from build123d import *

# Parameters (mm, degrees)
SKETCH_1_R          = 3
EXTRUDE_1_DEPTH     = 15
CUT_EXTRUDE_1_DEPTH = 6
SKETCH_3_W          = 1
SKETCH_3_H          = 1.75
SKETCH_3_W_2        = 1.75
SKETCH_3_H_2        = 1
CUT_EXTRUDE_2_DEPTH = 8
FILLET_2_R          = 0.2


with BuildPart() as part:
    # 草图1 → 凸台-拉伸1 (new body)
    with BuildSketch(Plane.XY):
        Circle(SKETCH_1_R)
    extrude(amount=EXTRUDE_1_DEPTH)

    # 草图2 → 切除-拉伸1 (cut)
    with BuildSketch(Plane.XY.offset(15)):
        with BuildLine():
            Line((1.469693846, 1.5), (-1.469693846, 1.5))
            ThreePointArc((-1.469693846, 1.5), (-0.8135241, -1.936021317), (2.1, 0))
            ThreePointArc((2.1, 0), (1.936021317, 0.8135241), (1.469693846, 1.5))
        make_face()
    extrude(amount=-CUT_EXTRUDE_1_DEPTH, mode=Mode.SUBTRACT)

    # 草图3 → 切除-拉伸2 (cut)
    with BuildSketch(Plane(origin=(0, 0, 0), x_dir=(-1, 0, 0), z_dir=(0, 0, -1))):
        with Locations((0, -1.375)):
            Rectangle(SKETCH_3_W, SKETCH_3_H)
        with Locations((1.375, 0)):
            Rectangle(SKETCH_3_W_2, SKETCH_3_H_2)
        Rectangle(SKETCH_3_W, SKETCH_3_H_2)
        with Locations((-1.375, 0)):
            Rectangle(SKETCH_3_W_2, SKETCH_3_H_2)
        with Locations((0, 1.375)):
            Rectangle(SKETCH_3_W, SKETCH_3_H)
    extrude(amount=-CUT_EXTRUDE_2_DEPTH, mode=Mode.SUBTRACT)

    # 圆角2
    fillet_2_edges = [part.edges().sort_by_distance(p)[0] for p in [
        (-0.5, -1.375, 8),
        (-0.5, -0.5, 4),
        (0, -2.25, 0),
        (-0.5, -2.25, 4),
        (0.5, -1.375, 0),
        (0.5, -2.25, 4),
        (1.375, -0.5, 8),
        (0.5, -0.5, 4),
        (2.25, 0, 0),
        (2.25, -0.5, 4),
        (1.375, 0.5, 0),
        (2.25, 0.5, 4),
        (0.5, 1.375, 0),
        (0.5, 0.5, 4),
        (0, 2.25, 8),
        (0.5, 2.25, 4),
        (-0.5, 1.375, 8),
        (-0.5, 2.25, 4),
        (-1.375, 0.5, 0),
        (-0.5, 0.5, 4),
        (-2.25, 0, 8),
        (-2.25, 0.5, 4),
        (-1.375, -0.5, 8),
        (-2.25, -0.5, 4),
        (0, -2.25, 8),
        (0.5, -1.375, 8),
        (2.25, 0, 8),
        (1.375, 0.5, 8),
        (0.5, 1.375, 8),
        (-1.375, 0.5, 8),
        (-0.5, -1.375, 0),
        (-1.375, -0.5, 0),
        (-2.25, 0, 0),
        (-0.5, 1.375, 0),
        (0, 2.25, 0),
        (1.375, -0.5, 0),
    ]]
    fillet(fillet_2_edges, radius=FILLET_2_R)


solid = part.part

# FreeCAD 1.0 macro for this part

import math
import FreeCAD as App
import Part
import Sketcher
from FreeCAD import Vector
Q = App.Units.Quantity


def edges_at(feature, points):
    """Names of the edges that pass closest to the given points."""
    edges = feature.Shape.Edges
    near = lambda p: min(range(len(edges)), key=lambda i: edges[i].distToShape(Part.Vertex(*p))[0])
    return sorted({f"Edge{near(p) + 1}" for p in points})


def add_polygon(sketch, points):
    """Adds a closed chain of lines whose ends are joined by coincident constraints."""
    first, n = sketch.GeometryCount, len(points)
    for a, b in zip(points, points[1:] + points[:1]):
        sketch.addGeometry(Part.LineSegment(App.Vector(*a, 0), App.Vector(*b, 0)), False)
    for i in range(n):
        sketch.addConstraint(Sketcher.Constraint("Coincident", first + i, 2, first + (i + 1) % n, 1))

doc = App.newDocument("Part")
body = doc.addObject("PartDesign::Body", "Body")

sketch1 = body.newObject("Sketcher::SketchObject", "Sketch")
sketch1.AttachmentSupport = (doc.getObject("XY_Plane"), [""])
sketch1.MapMode = "FlatFace"
sketch1.addGeometry(Part.Circle(Vector(0, 0, 0), Vector(0, 0, 1), 3), False)
sketch1.addConstraint(Sketcher.Constraint("Coincident", 0, 3, -1, 1))
sketch1.addConstraint(Sketcher.Constraint("Diameter", 0, Q("6 mm")))
pad1 = body.newObject("PartDesign::Pad", "Pad")
pad1.Profile = sketch1
pad1.Length = 15

sketch2 = body.newObject("Sketcher::SketchObject", "Sketch001")
sketch2.AttachmentSupport = (doc.getObject("XY_Plane"), [""])
sketch2.MapMode = "FlatFace"
sketch2.AttachmentOffset = App.Placement(Vector(0, 0, 15), App.Rotation())
sketch2.addGeometry(Part.LineSegment(Vector(1.5, 1.5, 0), Vector(-1.5, 1.5, 0)), False)
sketch2.addGeometry(Part.ArcOfCircle(Part.Circle(Vector(0, 0, 0), Vector(0, 0, 1), 2.1), math.radians(134), math.radians(360)), False)
sketch2.addGeometry(Part.ArcOfCircle(Part.Circle(Vector(0, 0, 0), Vector(0, 0, 1), 2.1), math.radians(0), math.radians(46)), False)
sketch2.addConstraint(Sketcher.Constraint("Coincident", 0, 2, 1, 1))
sketch2.addConstraint(Sketcher.Constraint("Tangent", 1, 2, 2, 1))
sketch2.addConstraint(Sketcher.Constraint("Coincident", 2, 2, 0, 1))
sketch2.addConstraint(Sketcher.Constraint("Horizontal", 0))
sketch2.addConstraint(Sketcher.Constraint("Coincident", 1, 3, -1, 1))
sketch2.addConstraint(Sketcher.Constraint("Equal", 1, 2))
sketch2.addConstraint(Sketcher.Constraint("PointOnObject", 1, 2, -1))
sketch2.addConstraint(Sketcher.Constraint("Radius", 1, Q("2.1 mm")))
sketch2.addConstraint(Sketcher.Constraint("DistanceY", -1, 1, 0, 2, Q("1.5 mm")))
pocket1 = body.newObject("PartDesign::Pocket", "Pocket")
pocket1.Profile = sketch2
pocket1.Length = 6

sketch3 = body.newObject("Sketcher::SketchObject", "Sketch002")
sketch3.AttachmentSupport = (doc.getObject("XY_Plane"), [""])
sketch3.MapMode = "FlatFace"
add_polygon(sketch3, [(0.5, -2.2), (-0.5, -2.2), (-0.5, -0.5), (-2.2, -0.5), (-2.2, 0.5), (-0.5, 0.5), (-0.5, 2.2), (0.5, 2.2), (0.5, 0.5), (2.2, 0.5), (2.2, -0.5), (0.5, -0.5)])
sketch3.addConstraint(Sketcher.Constraint("Horizontal", 0))
sketch3.addConstraint(Sketcher.Constraint("Vertical", 1))
sketch3.addConstraint(Sketcher.Constraint("Horizontal", 2))
sketch3.addConstraint(Sketcher.Constraint("Vertical", 3))
sketch3.addConstraint(Sketcher.Constraint("Horizontal", 4))
sketch3.addConstraint(Sketcher.Constraint("Vertical", 5))
sketch3.addConstraint(Sketcher.Constraint("Horizontal", 6))
sketch3.addConstraint(Sketcher.Constraint("Vertical", 7))
sketch3.addConstraint(Sketcher.Constraint("Horizontal", 8))
sketch3.addConstraint(Sketcher.Constraint("Vertical", 9))
sketch3.addConstraint(Sketcher.Constraint("Horizontal", 10))
sketch3.addConstraint(Sketcher.Constraint("Vertical", 11))
sketch3.addConstraint(Sketcher.Constraint("Symmetric", 0, 2, 6, 2, -1, 1))
sketch3.addConstraint(Sketcher.Constraint("Symmetric", 2, 2, 8, 2, -1, 1))
sketch3.addConstraint(Sketcher.Constraint("Symmetric", 4, 2, 10, 2, -1, 1))
sketch3.addConstraint(Sketcher.Constraint("Symmetric", 4, 2, 7, 2, -2))
sketch3.addConstraint(Sketcher.Constraint("Equal", 10, 1))
sketch3.addConstraint(Sketcher.Constraint("Equal", 6, 3))
sketch3.addConstraint(Sketcher.Constraint("DistanceX", 0, 2, 0, 1, Q("1 mm")))
sketch3.addConstraint(Sketcher.Constraint("DistanceX", 2, 2, 2, 1, Q("1.75 mm")))
pocket2 = body.newObject("PartDesign::Pocket", "Pocket001")
pocket2.Profile = sketch3
pocket2.Length = 8
pocket2.Reversed = True
doc.recompute()

fillet = body.newObject("PartDesign::Fillet", "Fillet")
fillet.Base = (pocket2, edges_at(pocket2, [
    (-0.5, -1.375, 8),
    (-0.5, -0.5, 4),
    (0, -2.25, 0),
    (-0.5, -2.25, 4),
    (0.5, -1.375, 0),
    (0.5, -2.25, 4),
    (1.375, -0.5, 8),
    (0.5, -0.5, 4),
    (2.25, 0, 0),
    (2.25, -0.5, 4),
    (1.375, 0.5, 0),
    (2.25, 0.5, 4),
    (0.5, 1.375, 0),
    (0.5, 0.5, 4),
    (0, 2.25, 8),
    (0.5, 2.25, 4),
    (-0.5, 1.375, 8),
    (-0.5, 2.25, 4),
    (-1.375, 0.5, 0),
    (-0.5, 0.5, 4),
    (-2.25, 0, 8),
    (-2.25, 0.5, 4),
    (-1.375, -0.5, 8),
    (-2.25, -0.5, 4),
    (0, -2.25, 8),
    (0.5, -1.375, 8),
    (2.25, 0, 8),
    (1.375, 0.5, 8),
    (0.5, 1.375, 8),
    (-1.375, 0.5, 8),
    (-0.5, -1.375, 0),
    (-1.375, -0.5, 0),
    (-2.25, 0, 0),
    (-0.5, 1.375, 0),
    (0, 2.25, 0),
    (1.375, -0.5, 0),
]))
fillet.Radius = 0.2

doc.recompute()
